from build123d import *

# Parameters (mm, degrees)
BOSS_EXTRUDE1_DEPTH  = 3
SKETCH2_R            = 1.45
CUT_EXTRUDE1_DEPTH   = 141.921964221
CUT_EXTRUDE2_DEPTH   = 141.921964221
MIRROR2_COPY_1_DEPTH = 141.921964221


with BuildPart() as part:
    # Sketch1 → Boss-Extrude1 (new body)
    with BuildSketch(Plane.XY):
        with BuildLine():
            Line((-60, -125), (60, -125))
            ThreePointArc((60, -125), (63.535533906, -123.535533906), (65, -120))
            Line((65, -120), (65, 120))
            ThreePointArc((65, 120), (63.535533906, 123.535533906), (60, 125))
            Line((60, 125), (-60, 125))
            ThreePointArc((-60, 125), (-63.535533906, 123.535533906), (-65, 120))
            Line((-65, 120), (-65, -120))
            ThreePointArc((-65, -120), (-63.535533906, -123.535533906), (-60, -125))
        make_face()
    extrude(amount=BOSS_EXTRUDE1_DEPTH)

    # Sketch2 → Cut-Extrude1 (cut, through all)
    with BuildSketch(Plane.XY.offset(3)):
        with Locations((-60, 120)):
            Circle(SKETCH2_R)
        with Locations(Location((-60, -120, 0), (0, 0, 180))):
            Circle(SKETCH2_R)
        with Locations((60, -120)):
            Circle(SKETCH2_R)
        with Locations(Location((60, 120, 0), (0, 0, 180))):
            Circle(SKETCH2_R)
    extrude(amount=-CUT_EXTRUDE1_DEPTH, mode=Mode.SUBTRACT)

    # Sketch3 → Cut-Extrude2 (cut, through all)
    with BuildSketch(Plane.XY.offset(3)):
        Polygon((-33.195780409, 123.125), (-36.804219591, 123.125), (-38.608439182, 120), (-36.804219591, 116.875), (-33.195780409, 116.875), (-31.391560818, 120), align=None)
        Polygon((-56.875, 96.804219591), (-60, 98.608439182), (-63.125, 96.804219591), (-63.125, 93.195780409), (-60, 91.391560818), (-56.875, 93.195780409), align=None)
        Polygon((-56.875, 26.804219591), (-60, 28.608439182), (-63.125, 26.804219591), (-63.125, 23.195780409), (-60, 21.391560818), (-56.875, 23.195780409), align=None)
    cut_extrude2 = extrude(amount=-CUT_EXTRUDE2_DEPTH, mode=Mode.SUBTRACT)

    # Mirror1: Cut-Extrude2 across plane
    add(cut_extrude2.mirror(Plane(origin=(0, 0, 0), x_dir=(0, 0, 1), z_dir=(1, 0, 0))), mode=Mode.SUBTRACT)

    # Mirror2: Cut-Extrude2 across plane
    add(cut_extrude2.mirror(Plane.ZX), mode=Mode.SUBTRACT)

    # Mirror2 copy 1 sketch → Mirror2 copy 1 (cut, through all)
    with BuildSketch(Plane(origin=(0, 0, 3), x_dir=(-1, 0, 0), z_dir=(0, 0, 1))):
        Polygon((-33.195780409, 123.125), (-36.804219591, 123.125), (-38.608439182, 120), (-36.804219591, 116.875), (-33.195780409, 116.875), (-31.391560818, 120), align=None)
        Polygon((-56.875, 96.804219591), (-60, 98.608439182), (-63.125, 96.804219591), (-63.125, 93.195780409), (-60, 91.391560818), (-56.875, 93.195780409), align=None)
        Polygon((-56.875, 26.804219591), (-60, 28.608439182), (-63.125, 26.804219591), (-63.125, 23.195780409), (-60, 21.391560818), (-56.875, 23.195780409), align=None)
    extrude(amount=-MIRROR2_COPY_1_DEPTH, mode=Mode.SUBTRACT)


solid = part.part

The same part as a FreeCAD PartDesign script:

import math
import FreeCAD as App
import Part
import Sketcher
Q = App.Units.Quantity

doc = App.newDocument("Part")
body = doc.addObject("PartDesign::Body", "Body")

sketch1 = body.newObject("Sketcher::SketchObject", "Sketch")
sketch1.AttachmentSupport = (doc.getObject("XY_Plane"), [""])
sketch1.MapMode = "FlatFace"
sketch1.addGeometry(Part.LineSegment(App.Vector(-60, -125, 0), App.Vector(60, -125, 0)), False)
sketch1.addGeometry(Part.ArcOfCircle(Part.Circle(App.Vector(60, -120, 0), App.Vector(0, 0, 1), 5), math.radians(-90), math.radians(0)), False)
sketch1.addGeometry(Part.LineSegment(App.Vector(65, -120, 0), App.Vector(65, 120, 0)), False)
sketch1.addGeometry(Part.ArcOfCircle(Part.Circle(App.Vector(60, 120, 0), App.Vector(0, 0, 1), 5), math.radians(0), math.radians(90)), False)
sketch1.addGeometry(Part.LineSegment(App.Vector(60, 125, 0), App.Vector(-60, 125, 0)), False)
sketch1.addGeometry(Part.ArcOfCircle(Part.Circle(App.Vector(-60, 120, 0), App.Vector(0, 0, 1), 5), math.radians(90), math.radians(180)), False)
sketch1.addGeometry(Part.LineSegment(App.Vector(-65, 120, 0), App.Vector(-65, -120, 0)), False)
sketch1.addGeometry(Part.ArcOfCircle(Part.Circle(App.Vector(-60, -120, 0), App.Vector(0, 0, 1), 5), math.radians(180), math.radians(270)), False)
sketch1.addConstraint(Sketcher.Constraint("Tangent", 0, 2, 1, 1))
sketch1.addConstraint(Sketcher.Constraint("Tangent", 1, 2, 2, 1))
sketch1.addConstraint(Sketcher.Constraint("Tangent", 2, 2, 3, 1))
sketch1.addConstraint(Sketcher.Constraint("Tangent", 3, 2, 4, 1))
sketch1.addConstraint(Sketcher.Constraint("Tangent", 4, 2, 5, 1))
sketch1.addConstraint(Sketcher.Constraint("Tangent", 5, 2, 6, 1))
sketch1.addConstraint(Sketcher.Constraint("Tangent", 6, 2, 7, 1))
sketch1.addConstraint(Sketcher.Constraint("Tangent", 7, 2, 0, 1))
sketch1.addConstraint(Sketcher.Constraint("Horizontal", 0))
sketch1.addConstraint(Sketcher.Constraint("Vertical", 2))
sketch1.addConstraint(Sketcher.Constraint("Horizontal", 4))
sketch1.addConstraint(Sketcher.Constraint("Vertical", 6))
sketch1.addConstraint(Sketcher.Constraint("Equal", 1, 3))
sketch1.addConstraint(Sketcher.Constraint("Equal", 3, 5))
sketch1.addConstraint(Sketcher.Constraint("Equal", 5, 7))
sketch1.addConstraint(Sketcher.Constraint("Symmetric", 1, 3, 5, 3, -1, 1))
sketch1.addConstraint(Sketcher.Constraint("Radius", 1, 5.0))
sketch1.addConstraint(Sketcher.Constraint("DistanceX", 0, 1, 0, 2, 120.0))
sketch1.addConstraint(Sketcher.Constraint("DistanceY", 2, 1, 2, 2, 240.0))
pad1 = body.newObject("PartDesign::Pad", "Pad")
pad1.Profile = sketch1
pad1.Length = 3

sketch2 = body.newObject("Sketcher::SketchObject", "Sketch001")
sketch2.AttachmentSupport = (doc.getObject("XY_Plane"), [""])
sketch2.MapMode = "FlatFace"
sketch2.AttachmentOffset = App.Placement(App.Vector(0, 0, 3), App.Rotation())
sketch2.addGeometry(Part.Circle(App.Vector(-60, 120, 0), App.Vector(0, 0, 1), 1.45), False)
sketch2.addGeometry(Part.Circle(App.Vector(-60, -120, 0), App.Vector(0, 0, 1), 1.45), False)
sketch2.addGeometry(Part.Circle(App.Vector(60, -120, 0), App.Vector(0, 0, 1), 1.45), False)
sketch2.addGeometry(Part.Circle(App.Vector(60, 120, 0), App.Vector(0, 0, 1), 1.45), False)
sketch2.addConstraint(Sketcher.Constraint("Equal", 0, 1))
sketch2.addConstraint(Sketcher.Constraint("Equal", 1, 2))
sketch2.addConstraint(Sketcher.Constraint("Equal", 2, 3))
sketch2.addConstraint(Sketcher.Constraint("Symmetric", 0, 3, 2, 3, -1, 1))
sketch2.addConstraint(Sketcher.Constraint("Symmetric", 1, 3, 3, 3, -1, 1))
sketch2.addConstraint(Sketcher.Constraint("Symmetric", 1, 3, 2, 3, -2))
sketch2.addConstraint(Sketcher.Constraint("Diameter", 0, 2.9))
sketch2.addConstraint(Sketcher.Constraint("DistanceX", 0, 3, -1, 1, 60.0))
sketch2.addConstraint(Sketcher.Constraint("DistanceY", -1, 1, 0, 3, 120.0))
pocket1 = body.newObject("PartDesign::Pocket", "Pocket")
pocket1.Profile = sketch2
pocket1.Type = "ThroughAll"

sketch3 = body.newObject("Sketcher::SketchObject", "Sketch002")
sketch3.AttachmentSupport = (doc.getObject("XY_Plane"), [""])
sketch3.MapMode = "FlatFace"
sketch3.AttachmentOffset = App.Placement(App.Vector(0, 0, 3), App.Rotation())
sketch3.addGeometry(Part.LineSegment(App.Vector(-33.19578, 123.125, 0), App.Vector(-36.80422, 123.125, 0)), False)
sketch3.addGeometry(Part.LineSegment(App.Vector(-36.80422, 123.125, 0), App.Vector(-38.608439, 120, 0)), False)
sketch3.addGeometry(Part.LineSegment(App.Vector(-38.608439, 120, 0), App.Vector(-36.80422, 116.875, 0)), False)
sketch3.addGeometry(Part.LineSegment(App.Vector(-36.80422, 116.875, 0), App.Vector(-33.19578, 116.875, 0)), False)
sketch3.addGeometry(Part.LineSegment(App.Vector(-33.19578, 116.875, 0), App.Vector(-31.391561, 120, 0)), False)
sketch3.addGeometry(Part.LineSegment(App.Vector(-31.391561, 120, 0), App.Vector(-33.19578, 123.125, 0)), False)
sketch3.addGeometry(Part.LineSegment(App.Vector(-56.875, 96.80422, 0), App.Vector(-60, 98.608439, 0)), False)
sketch3.addGeometry(Part.LineSegment(App.Vector(-60, 98.608439, 0), App.Vector(-63.125, 96.80422, 0)), False)
sketch3.addGeometry(Part.LineSegment(App.Vector(-63.125, 96.80422, 0), App.Vector(-63.125, 93.19578, 0)), False)
sketch3.addGeometry(Part.LineSegment(App.Vector(-63.125, 93.19578, 0), App.Vector(-60, 91.391561, 0)), False)
sketch3.addGeometry(Part.LineSegment(App.Vector(-60, 91.391561, 0), App.Vector(-56.875, 93.19578, 0)), False)
sketch3.addGeometry(Part.LineSegment(App.Vector(-56.875, 93.19578, 0), App.Vector(-56.875, 96.80422, 0)), False)
sketch3.addGeometry(Part.LineSegment(App.Vector(-56.875, 26.80422, 0), App.Vector(-60, 28.608439, 0)), False)
sketch3.addGeometry(Part.LineSegment(App.Vector(-60, 28.608439, 0), App.Vector(-63.125, 26.80422, 0)), False)
sketch3.addGeometry(Part.LineSegment(App.Vector(-63.125, 26.80422, 0), App.Vector(-63.125, 23.19578, 0)), False)
sketch3.addGeometry(Part.LineSegment(App.Vector(-63.125, 23.19578, 0), App.Vector(-60, 21.391561, 0)), False)
sketch3.addGeometry(Part.LineSegment(App.Vector(-60, 21.391561, 0), App.Vector(-56.875, 23.19578, 0)), False)
sketch3.addGeometry(Part.LineSegment(App.Vector(-56.875, 23.19578, 0), App.Vector(-56.875, 26.80422, 0)), False)
sketch3.addConstraint(Sketcher.Constraint("Coincident", 0, 2, 1, 1))
sketch3.addConstraint(Sketcher.Constraint("Coincident", 1, 2, 2, 1))
sketch3.addConstraint(Sketcher.Constraint("Coincident", 2, 2, 3, 1))
sketch3.addConstraint(Sketcher.Constraint("Coincident", 3, 2, 4, 1))
sketch3.addConstraint(Sketcher.Constraint("Coincident", 4, 2, 5, 1))
sketch3.addConstraint(Sketcher.Constraint("Coincident", 5, 2, 0, 1))
sketch3.addConstraint(Sketcher.Constraint("Coincident", 6, 2, 7, 1))
sketch3.addConstraint(Sketcher.Constraint("Coincident", 7, 2, 8, 1))
sketch3.addConstraint(Sketcher.Constraint("Coincident", 8, 2, 9, 1))
sketch3.addConstraint(Sketcher.Constraint("Coincident", 9, 2, 10, 1))
sketch3.addConstraint(Sketcher.Constraint("Coincident", 10, 2, 11, 1))
sketch3.addConstraint(Sketcher.Constraint("Coincident", 11, 2, 6, 1))
sketch3.addConstraint(Sketcher.Constraint("Coincident", 12, 2, 13, 1))
sketch3.addConstraint(Sketcher.Constraint("Coincident", 13, 2, 14, 1))
sketch3.addConstraint(Sketcher.Constraint("Coincident", 14, 2, 15, 1))
sketch3.addConstraint(Sketcher.Constraint("Coincident", 15, 2, 16, 1))
sketch3.addConstraint(Sketcher.Constraint("Coincident", 16, 2, 17, 1))
sketch3.addConstraint(Sketcher.Constraint("Coincident", 17, 2, 12, 1))
sketch3.addConstraint(Sketcher.Constraint("Horizontal", 0))
sketch3.addConstraint(Sketcher.Constraint("Horizontal", 3))
sketch3.addConstraint(Sketcher.Constraint("Vertical", 8))
sketch3.addConstraint(Sketcher.Constraint("Vertical", 11))
sketch3.addConstraint(Sketcher.Constraint("Vertical", 14))
sketch3.addConstraint(Sketcher.Constraint("Vertical", 17))
sketch3.addConstraint(Sketcher.Constraint("Parallel", 1, 4))
sketch3.addConstraint(Sketcher.Constraint("Parallel", 2, 5))
sketch3.addConstraint(Sketcher.Constraint("Perpendicular", 4, 6))
sketch3.addConstraint(Sketcher.Constraint("Perpendicular", 5, 7))
sketch3.addConstraint(Sketcher.Constraint("Parallel", 6, 9))
sketch3.addConstraint(Sketcher.Constraint("Parallel", 7, 10))
sketch3.addConstraint(Sketcher.Constraint("Parallel", 9, 12))
sketch3.addConstraint(Sketcher.Constraint("Parallel", 10, 13))
sketch3.addConstraint(Sketcher.Constraint("Parallel", 12, 15))
sketch3.addConstraint(Sketcher.Constraint("Parallel", 13, 16))
sketch3.addConstraint(Sketcher.Constraint("Horizontal", 1, 2, 4, 2))
sketch3.addConstraint(Sketcher.Constraint("Horizontal", 8, 2, 10, 2))
sketch3.addConstraint(Sketcher.Constraint("Horizontal", 7, 2, 11, 2))
sketch3.addConstraint(Sketcher.Constraint("Horizontal", 14, 2, 16, 2))
sketch3.addConstraint(Sketcher.Constraint("Horizontal", 13, 2, 17, 2))
sketch3.addConstraint(Sketcher.Constraint("Vertical", 0, 2, 2, 2))
sketch3.addConstraint(Sketcher.Constraint("Vertical", 3, 2, 5, 2))
sketch3.addConstraint(Sketcher.Constraint("Vertical", 9, 2, 12, 2))
sketch3.addConstraint(Sketcher.Constraint("Vertical", 8, 2, 13, 2))
sketch3.addConstraint(Sketcher.Constraint("Equal", 3, 8))
sketch3.addConstraint(Sketcher.Constraint("Equal", 11, 14))
sketch3.addConstraint(Sketcher.Constraint("Equal", 5, 6))
sketch3.addConstraint(Sketcher.Constraint("Angle", 1, Q("-120 deg")))
sketch3.addConstraint(Sketcher.Constraint("DistanceY", -1, 1, 1, 2, 120.0))
sketch3.addConstraint(Sketcher.Constraint("DistanceX", 6, 2, -1, 1, 60.0))
sketch3.addConstraint(Sketcher.Constraint("DistanceY", 13, 2, 7, 2, 70.0))
sketch3.addConstraint(Sketcher.Constraint("DistanceY", 2, 2, 0, 2, 6.25))
sketch3.addConstraint(Sketcher.Constraint("DistanceX", 0, 2, 0, 1, 3.608439))
sketch3.addConstraint(Sketcher.Constraint("DistanceX", 0, 2, -1, 1, 36.80422))
sketch3.addConstraint(Sketcher.Constraint("DistanceY", -1, 1, 6, 2, 98.608439))
pocket2 = body.newObject("PartDesign::Pocket", "Pocket001")
pocket2.Profile = sketch3
pocket2.Type = "ThroughAll"
doc.recompute()

mirrored = body.newObject("PartDesign::Mirrored", "Mirrored")
mirrored.Originals = [pocket2]
mirrored.MirrorPlane = (doc.getObject("YZ_Plane"), [""])
body.Tip = mirrored
doc.recompute()

mirrored2 = body.newObject("PartDesign::Mirrored", "Mirrored001")
mirrored2.Originals = [pocket2]
mirrored2.MirrorPlane = (doc.getObject("XZ_Plane"), [""])
body.Tip = mirrored2

sketch4 = body.newObject("Sketcher::SketchObject", "Sketch003")
sketch4.AttachmentSupport = (doc.getObject("XY_Plane"), [""])
sketch4.MapMode = "FlatFace"
sketch4.AttachmentOffset = App.Placement(App.Vector(0, 0, 3), App.Rotation())
sketch4.addGeometry(Part.LineSegment(App.Vector(33.19578, -123.125, 0), App.Vector(36.80422, -123.125, 0)), False)
sketch4.addGeometry(Part.LineSegment(App.Vector(36.80422, -123.125, 0), App.Vector(38.608439, -120, 0)), False)
sketch4.addGeometry(Part.LineSegment(App.Vector(38.608439, -120, 0), App.Vector(36.80422, -116.875, 0)), False)
sketch4.addGeometry(Part.LineSegment(App.Vector(36.80422, -116.875, 0), App.Vector(33.19578, -116.875, 0)), False)
sketch4.addGeometry(Part.LineSegment(App.Vector(33.19578, -116.875, 0), App.Vector(31.391561, -120, 0)), False)
sketch4.addGeometry(Part.LineSegment(App.Vector(31.391561, -120, 0), App.Vector(33.19578, -123.125, 0)), False)
sketch4.addGeometry(Part.LineSegment(App.Vector(56.875, -96.80422, 0), App.Vector(60, -98.608439, 0)), False)
sketch4.addGeometry(Part.LineSegment(App.Vector(60, -98.608439, 0), App.Vector(63.125, -96.80422, 0)), False)
sketch4.addGeometry(Part.LineSegment(App.Vector(63.125, -96.80422, 0), App.Vector(63.125, -93.19578, 0)), False)
sketch4.addGeometry(Part.LineSegment(App.Vector(63.125, -93.19578, 0), App.Vector(60, -91.391561, 0)), False)
sketch4.addGeometry(Part.LineSegment(App.Vector(60, -91.391561, 0), App.Vector(56.875, -93.19578, 0)), False)
sketch4.addGeometry(Part.LineSegment(App.Vector(56.875, -93.19578, 0), App.Vector(56.875, -96.80422, 0)), False)
sketch4.addGeometry(Part.LineSegment(App.Vector(56.875, -26.80422, 0), App.Vector(60, -28.608439, 0)), False)
sketch4.addGeometry(Part.LineSegment(App.Vector(60, -28.608439, 0), App.Vector(63.125, -26.80422, 0)), False)
sketch4.addGeometry(Part.LineSegment(App.Vector(63.125, -26.80422, 0), App.Vector(63.125, -23.19578, 0)), False)
sketch4.addGeometry(Part.LineSegment(App.Vector(63.125, -23.19578, 0), App.Vector(60, -21.391561, 0)), False)
sketch4.addGeometry(Part.LineSegment(App.Vector(60, -21.391561, 0), App.Vector(56.875, -23.19578, 0)), False)
sketch4.addGeometry(Part.LineSegment(App.Vector(56.875, -23.19578, 0), App.Vector(56.875, -26.80422, 0)), False)
sketch4.addConstraint(Sketcher.Constraint("Coincident", 0, 2, 1, 1))
sketch4.addConstraint(Sketcher.Constraint("Coincident", 1, 2, 2, 1))
sketch4.addConstraint(Sketcher.Constraint("Coincident", 2, 2, 3, 1))
sketch4.addConstraint(Sketcher.Constraint("Coincident", 3, 2, 4, 1))
sketch4.addConstraint(Sketcher.Constraint("Coincident", 4, 2, 5, 1))
sketch4.addConstraint(Sketcher.Constraint("Coincident", 5, 2, 0, 1))
sketch4.addConstraint(Sketcher.Constraint("Coincident", 6, 2, 7, 1))
sketch4.addConstraint(Sketcher.Constraint("Coincident", 7, 2, 8, 1))
sketch4.addConstraint(Sketcher.Constraint("Coincident", 8, 2, 9, 1))
sketch4.addConstraint(Sketcher.Constraint("Coincident", 9, 2, 10, 1))
sketch4.addConstraint(Sketcher.Constraint("Coincident", 10, 2, 11, 1))
sketch4.addConstraint(Sketcher.Constraint("Coincident", 11, 2, 6, 1))
sketch4.addConstraint(Sketcher.Constraint("Coincident", 12, 2, 13, 1))
sketch4.addConstraint(Sketcher.Constraint("Coincident", 13, 2, 14, 1))
sketch4.addConstraint(Sketcher.Constraint("Coincident", 14, 2, 15, 1))
sketch4.addConstraint(Sketcher.Constraint("Coincident", 15, 2, 16, 1))
sketch4.addConstraint(Sketcher.Constraint("Coincident", 16, 2, 17, 1))
sketch4.addConstraint(Sketcher.Constraint("Coincident", 17, 2, 12, 1))
sketch4.addConstraint(Sketcher.Constraint("Horizontal", 0))
sketch4.addConstraint(Sketcher.Constraint("Horizontal", 3))
sketch4.addConstraint(Sketcher.Constraint("Vertical", 8))
sketch4.addConstraint(Sketcher.Constraint("Vertical", 11))
sketch4.addConstraint(Sketcher.Constraint("Vertical", 14))
sketch4.addConstraint(Sketcher.Constraint("Vertical", 17))
sketch4.addConstraint(Sketcher.Constraint("Parallel", 1, 4))
sketch4.addConstraint(Sketcher.Constraint("Parallel", 2, 5))
sketch4.addConstraint(Sketcher.Constraint("Perpendicular", 4, 6))
sketch4.addConstraint(Sketcher.Constraint("Perpendicular", 5, 7))
sketch4.addConstraint(Sketcher.Constraint("Parallel", 6, 9))
sketch4.addConstraint(Sketcher.Constraint("Parallel", 7, 10))
sketch4.addConstraint(Sketcher.Constraint("Parallel", 9, 12))
sketch4.addConstraint(Sketcher.Constraint("Parallel", 10, 13))
sketch4.addConstraint(Sketcher.Constraint("Parallel", 12, 15))
sketch4.addConstraint(Sketcher.Constraint("Parallel", 13, 16))
sketch4.addConstraint(Sketcher.Constraint("Horizontal", 1, 2, 4, 2))
sketch4.addConstraint(Sketcher.Constraint("Horizontal", 8, 2, 10, 2))
sketch4.addConstraint(Sketcher.Constraint("Horizontal", 7, 2, 11, 2))
sketch4.addConstraint(Sketcher.Constraint("Horizontal", 14, 2, 16, 2))
sketch4.addConstraint(Sketcher.Constraint("Horizontal", 13, 2, 17, 2))
sketch4.addConstraint(Sketcher.Constraint("Vertical", 0, 2, 2, 2))
sketch4.addConstraint(Sketcher.Constraint("Vertical", 3, 2, 5, 2))
sketch4.addConstraint(Sketcher.Constraint("Vertical", 9, 2, 12, 2))
sketch4.addConstraint(Sketcher.Constraint("Vertical", 8, 2, 13, 2))
sketch4.addConstraint(Sketcher.Constraint("Equal", 3, 8))
sketch4.addConstraint(Sketcher.Constraint("Equal", 11, 14))
sketch4.addConstraint(Sketcher.Constraint("Equal", 5, 6))
sketch4.addConstraint(Sketcher.Constraint("Angle", 1, Q("60 deg")))
sketch4.addConstraint(Sketcher.Constraint("DistanceY", 1, 2, -1, 1, 120.0))
sketch4.addConstraint(Sketcher.Constraint("DistanceX", -1, 1, 6, 2, 60.0))
sketch4.addConstraint(Sketcher.Constraint("DistanceY", 7, 2, 13, 2, 70.0))
sketch4.addConstraint(Sketcher.Constraint("DistanceY", 0, 2, 2, 2, 6.25))
sketch4.addConstraint(Sketcher.Constraint("DistanceX", 0, 1, 0, 2, 3.608439))
sketch4.addConstraint(Sketcher.Constraint("DistanceX", -1, 1, 0, 2, 36.80422))
sketch4.addConstraint(Sketcher.Constraint("DistanceY", 6, 2, -1, 1, 98.608439))
pocket3 = body.newObject("PartDesign::Pocket", "Pocket002")
pocket3.Profile = sketch4
pocket3.Type = "ThroughAll"

doc.recompute()
